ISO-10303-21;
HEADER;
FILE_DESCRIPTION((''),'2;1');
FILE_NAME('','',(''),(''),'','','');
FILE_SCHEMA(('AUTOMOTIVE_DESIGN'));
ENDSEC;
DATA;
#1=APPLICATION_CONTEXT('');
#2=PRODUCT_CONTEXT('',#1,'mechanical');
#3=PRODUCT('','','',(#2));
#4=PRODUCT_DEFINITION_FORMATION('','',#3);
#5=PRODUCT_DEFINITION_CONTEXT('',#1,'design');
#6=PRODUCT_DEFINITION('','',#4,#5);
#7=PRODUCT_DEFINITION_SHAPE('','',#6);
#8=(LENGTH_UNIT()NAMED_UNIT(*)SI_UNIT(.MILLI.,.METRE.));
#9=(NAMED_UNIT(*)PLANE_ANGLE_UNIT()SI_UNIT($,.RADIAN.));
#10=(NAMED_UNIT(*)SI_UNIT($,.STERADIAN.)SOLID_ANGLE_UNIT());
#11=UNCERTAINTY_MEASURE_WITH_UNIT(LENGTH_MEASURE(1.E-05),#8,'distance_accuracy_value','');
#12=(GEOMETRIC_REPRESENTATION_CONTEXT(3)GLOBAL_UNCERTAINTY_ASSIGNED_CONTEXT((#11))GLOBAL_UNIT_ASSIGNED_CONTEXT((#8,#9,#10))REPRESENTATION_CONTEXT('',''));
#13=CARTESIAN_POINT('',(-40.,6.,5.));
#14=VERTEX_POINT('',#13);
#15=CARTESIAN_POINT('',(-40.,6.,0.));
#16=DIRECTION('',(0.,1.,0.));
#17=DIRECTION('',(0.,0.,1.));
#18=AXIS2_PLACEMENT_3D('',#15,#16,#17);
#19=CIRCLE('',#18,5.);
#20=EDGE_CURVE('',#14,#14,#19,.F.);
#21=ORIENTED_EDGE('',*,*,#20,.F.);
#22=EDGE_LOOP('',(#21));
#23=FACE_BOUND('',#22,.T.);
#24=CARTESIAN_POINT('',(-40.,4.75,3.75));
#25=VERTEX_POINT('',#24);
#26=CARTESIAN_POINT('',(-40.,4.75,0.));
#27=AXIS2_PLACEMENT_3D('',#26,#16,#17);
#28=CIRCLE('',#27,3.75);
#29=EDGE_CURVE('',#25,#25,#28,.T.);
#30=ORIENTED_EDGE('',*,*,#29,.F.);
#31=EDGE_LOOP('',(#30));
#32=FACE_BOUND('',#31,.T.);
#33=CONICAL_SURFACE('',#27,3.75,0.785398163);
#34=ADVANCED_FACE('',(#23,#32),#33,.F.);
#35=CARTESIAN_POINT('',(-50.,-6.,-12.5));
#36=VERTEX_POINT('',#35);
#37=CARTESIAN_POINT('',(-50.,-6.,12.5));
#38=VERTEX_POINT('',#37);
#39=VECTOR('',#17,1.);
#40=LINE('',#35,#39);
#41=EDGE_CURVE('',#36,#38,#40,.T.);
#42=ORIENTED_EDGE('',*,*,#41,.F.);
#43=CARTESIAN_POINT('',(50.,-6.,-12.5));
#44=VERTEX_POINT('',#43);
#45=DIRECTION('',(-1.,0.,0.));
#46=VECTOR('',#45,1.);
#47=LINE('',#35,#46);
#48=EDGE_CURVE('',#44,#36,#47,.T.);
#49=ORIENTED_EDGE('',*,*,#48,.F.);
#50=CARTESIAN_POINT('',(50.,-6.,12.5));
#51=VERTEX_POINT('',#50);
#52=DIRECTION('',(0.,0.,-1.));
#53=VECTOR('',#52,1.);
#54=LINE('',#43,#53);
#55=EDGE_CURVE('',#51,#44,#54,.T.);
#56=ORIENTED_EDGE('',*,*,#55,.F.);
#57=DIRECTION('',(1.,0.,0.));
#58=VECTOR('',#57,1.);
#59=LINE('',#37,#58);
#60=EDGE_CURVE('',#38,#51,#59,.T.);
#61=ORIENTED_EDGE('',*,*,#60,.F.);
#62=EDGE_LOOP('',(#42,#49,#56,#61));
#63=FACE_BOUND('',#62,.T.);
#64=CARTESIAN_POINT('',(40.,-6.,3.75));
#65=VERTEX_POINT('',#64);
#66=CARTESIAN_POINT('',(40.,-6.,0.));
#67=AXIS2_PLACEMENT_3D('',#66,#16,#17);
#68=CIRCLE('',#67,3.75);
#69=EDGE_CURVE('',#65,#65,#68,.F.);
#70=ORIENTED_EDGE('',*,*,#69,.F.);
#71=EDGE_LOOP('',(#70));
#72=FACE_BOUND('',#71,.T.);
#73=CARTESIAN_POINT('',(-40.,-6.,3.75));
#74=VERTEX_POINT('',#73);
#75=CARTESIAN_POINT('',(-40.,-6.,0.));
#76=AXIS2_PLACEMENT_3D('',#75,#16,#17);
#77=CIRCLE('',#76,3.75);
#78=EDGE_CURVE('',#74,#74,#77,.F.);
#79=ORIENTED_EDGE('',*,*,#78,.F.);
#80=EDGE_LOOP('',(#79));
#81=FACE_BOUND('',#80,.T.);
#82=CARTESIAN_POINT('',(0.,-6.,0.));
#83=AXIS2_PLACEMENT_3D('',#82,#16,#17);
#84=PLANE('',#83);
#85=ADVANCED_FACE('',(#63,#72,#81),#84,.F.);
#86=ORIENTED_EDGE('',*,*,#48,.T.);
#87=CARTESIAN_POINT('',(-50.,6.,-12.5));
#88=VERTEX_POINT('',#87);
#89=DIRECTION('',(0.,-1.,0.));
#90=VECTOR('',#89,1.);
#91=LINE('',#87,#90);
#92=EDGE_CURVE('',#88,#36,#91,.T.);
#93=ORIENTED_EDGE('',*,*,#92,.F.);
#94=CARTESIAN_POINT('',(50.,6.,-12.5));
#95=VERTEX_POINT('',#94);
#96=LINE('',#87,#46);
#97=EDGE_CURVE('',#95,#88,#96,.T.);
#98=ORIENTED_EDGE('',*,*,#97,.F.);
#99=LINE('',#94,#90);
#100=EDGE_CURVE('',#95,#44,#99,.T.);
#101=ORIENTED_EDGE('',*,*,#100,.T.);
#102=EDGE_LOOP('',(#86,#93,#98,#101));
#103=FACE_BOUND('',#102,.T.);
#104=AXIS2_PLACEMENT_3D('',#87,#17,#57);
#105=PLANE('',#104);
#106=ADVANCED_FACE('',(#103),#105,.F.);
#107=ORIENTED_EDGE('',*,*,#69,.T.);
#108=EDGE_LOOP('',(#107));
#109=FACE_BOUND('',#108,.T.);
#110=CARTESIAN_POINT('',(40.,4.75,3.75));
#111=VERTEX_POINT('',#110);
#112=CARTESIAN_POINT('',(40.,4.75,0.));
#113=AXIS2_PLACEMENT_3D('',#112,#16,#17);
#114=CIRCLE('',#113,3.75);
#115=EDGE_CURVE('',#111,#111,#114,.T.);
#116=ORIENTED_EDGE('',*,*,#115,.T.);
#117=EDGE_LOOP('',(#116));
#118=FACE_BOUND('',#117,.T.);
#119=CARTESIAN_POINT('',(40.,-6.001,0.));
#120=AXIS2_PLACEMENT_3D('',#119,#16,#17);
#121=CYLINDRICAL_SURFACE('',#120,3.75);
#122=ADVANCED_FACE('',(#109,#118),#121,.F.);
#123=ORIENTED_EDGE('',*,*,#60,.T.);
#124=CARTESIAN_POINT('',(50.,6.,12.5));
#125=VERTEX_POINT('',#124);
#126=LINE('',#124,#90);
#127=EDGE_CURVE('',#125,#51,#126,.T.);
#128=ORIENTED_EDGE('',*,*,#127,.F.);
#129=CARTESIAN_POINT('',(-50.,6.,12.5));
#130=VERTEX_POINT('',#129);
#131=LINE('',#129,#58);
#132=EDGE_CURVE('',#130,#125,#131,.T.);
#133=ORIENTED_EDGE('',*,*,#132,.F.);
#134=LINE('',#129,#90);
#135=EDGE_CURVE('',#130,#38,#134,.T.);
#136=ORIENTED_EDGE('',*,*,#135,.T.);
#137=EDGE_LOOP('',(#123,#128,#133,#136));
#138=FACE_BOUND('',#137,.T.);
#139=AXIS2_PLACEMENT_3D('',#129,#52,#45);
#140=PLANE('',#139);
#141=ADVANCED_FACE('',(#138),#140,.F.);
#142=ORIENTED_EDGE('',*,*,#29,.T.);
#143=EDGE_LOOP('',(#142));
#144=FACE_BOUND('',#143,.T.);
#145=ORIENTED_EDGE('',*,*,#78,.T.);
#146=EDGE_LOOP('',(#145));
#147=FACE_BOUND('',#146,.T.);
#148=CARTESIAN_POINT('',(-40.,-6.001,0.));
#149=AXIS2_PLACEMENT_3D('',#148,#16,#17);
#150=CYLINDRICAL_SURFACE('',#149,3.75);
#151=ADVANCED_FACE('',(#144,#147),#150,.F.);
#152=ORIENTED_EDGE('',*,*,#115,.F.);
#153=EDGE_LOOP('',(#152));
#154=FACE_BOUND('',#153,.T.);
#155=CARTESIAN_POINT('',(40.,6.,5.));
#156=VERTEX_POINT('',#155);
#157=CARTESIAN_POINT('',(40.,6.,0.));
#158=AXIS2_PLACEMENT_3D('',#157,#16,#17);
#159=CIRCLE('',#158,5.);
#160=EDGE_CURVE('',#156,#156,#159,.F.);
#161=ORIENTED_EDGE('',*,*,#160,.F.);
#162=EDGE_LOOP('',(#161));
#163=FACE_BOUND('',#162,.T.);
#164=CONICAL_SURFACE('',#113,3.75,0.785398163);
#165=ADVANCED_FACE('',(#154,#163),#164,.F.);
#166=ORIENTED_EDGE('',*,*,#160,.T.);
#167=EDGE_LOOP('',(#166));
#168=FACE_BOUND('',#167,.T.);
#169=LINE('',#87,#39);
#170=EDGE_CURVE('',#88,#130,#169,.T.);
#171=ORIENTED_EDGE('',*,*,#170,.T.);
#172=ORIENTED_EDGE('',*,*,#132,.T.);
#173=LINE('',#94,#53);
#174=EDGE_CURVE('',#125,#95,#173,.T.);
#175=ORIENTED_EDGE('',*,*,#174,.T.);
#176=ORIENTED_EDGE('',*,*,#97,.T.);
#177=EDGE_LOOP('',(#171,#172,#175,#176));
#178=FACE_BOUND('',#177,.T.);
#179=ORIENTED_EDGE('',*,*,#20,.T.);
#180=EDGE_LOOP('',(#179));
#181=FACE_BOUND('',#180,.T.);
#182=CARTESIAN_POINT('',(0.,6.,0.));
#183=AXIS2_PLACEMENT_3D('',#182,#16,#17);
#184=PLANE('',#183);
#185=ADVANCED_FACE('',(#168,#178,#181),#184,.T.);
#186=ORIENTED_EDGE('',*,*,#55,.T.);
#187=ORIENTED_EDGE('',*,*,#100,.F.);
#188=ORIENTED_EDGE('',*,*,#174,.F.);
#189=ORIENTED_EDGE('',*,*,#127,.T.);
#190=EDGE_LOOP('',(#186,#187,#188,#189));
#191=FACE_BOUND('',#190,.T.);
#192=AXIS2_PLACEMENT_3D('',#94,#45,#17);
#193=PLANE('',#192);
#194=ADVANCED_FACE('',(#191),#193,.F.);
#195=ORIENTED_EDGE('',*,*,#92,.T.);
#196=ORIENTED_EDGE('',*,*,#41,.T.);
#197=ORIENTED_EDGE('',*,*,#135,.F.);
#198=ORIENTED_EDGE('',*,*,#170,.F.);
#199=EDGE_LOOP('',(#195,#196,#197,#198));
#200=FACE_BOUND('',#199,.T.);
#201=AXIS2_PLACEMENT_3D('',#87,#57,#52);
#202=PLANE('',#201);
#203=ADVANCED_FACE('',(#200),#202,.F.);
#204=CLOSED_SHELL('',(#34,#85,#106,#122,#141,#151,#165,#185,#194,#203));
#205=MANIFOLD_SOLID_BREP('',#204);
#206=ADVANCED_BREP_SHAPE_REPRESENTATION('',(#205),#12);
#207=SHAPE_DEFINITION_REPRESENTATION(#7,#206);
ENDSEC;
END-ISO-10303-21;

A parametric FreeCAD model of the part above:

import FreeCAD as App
import Part
import Sketcher
Q = App.Units.Quantity


def edges_at(feature, points):
    """Names of the edges that pass closest to the given points."""
    edges = feature.Shape.Edges
    near = lambda p: min(range(len(edges)), key=lambda i: edges[i].distToShape(Part.Vertex(*p))[0])
    return sorted({f"Edge{near(p) + 1}" for p in points})


def add_polygon(sketch, points):
    """Adds a closed chain of lines whose ends are joined by coincident constraints."""
    first, n = sketch.GeometryCount, len(points)
    for a, b in zip(points, points[1:] + points[:1]):
        sketch.addGeometry(Part.LineSegment(App.Vector(*a, 0), App.Vector(*b, 0)), False)
    for i in range(n):
        sketch.addConstraint(Sketcher.Constraint("Coincident", first + i, 2, first + (i + 1) % n, 1))

doc = App.newDocument("Part")
body = doc.addObject("PartDesign::Body", "Body")

sketch1 = body.newObject("Sketcher::SketchObject", "Sketch")
sketch1.AttachmentSupport = (doc.getObject("XZ_Plane"), [""])
sketch1.MapMode = "FlatFace"
add_polygon(sketch1, [(-50, -12), (-50, 12), (50, 12), (50, -12)])
sketch1.addConstraint([
    Sketcher.Constraint("Vertical", 0),
    Sketcher.Constraint("Horizontal", 1),
    Sketcher.Constraint("Vertical", 2),
    Sketcher.Constraint("Horizontal", 3),
    Sketcher.Constraint("Symmetric", 0, 2, 2, 2, -1, 1),
    Sketcher.Constraint("DistanceX", 1, 1, 1, 2, Q("100 mm")),
    Sketcher.Constraint("DistanceY", 0, 1, 0, 2, Q("25 mm")),
])
pad1 = body.newObject("PartDesign::Pad", "Pad")
pad1.Profile = sketch1
pad1.Length = 12
pad1.Midplane = True

sketch2 = body.newObject("Sketcher::SketchObject", "Sketch001")
sketch2.AttachmentSupport = (doc.getObject("XZ_Plane"), [""])
sketch2.MapMode = "FlatFace"
sketch2.AttachmentOffset = App.Placement(App.Vector(0, 0, -6), App.Rotation())
sketch2.addGeometry(Part.Circle(App.Vector(-40, 0, 0), App.Vector(0, 0, 1), 3.8), False)
sketch2.addConstraint([
    Sketcher.Constraint("PointOnObject", 0, 3, -1),
    Sketcher.Constraint("Diameter", 0, Q("7.5 mm")),
    Sketcher.Constraint("DistanceX", 0, 3, -1, 1, Q("40 mm")),
])
pocket1 = body.newObject("PartDesign::Pocket", "Pocket")
pocket1.Profile = sketch2
pocket1.Type = "UpToFirst"
pocket1.Reversed = True

sketch3 = body.newObject("Sketcher::SketchObject", "Sketch002")
sketch3.AttachmentSupport = (doc.getObject("XZ_Plane"), [""])
sketch3.MapMode = "FlatFace"
sketch3.AttachmentOffset = App.Placement(App.Vector(0, 0, -6), App.Rotation())
sketch3.addGeometry(Part.Circle(App.Vector(40, 0, 0), App.Vector(0, 0, 1), 3.8), False)
sketch3.addConstraint([
    Sketcher.Constraint("PointOnObject", 0, 3, -1),
    Sketcher.Constraint("Diameter", 0, Q("7.5 mm")),
    Sketcher.Constraint("DistanceX", -1, 1, 0, 3, Q("40 mm")),
])
pocket2 = body.newObject("PartDesign::Pocket", "Pocket001")
pocket2.Profile = sketch3
pocket2.Type = "UpToFirst"
pocket2.Reversed = True
doc.recompute()

chamfer = body.newObject("PartDesign::Chamfer", "Chamfer")
chamfer.Base = (pocket2, edges_at(pocket2, [(-40, 6, -3.75), (40, 6, -3.75)]))
chamfer.Size = 1.25

doc.recompute()
